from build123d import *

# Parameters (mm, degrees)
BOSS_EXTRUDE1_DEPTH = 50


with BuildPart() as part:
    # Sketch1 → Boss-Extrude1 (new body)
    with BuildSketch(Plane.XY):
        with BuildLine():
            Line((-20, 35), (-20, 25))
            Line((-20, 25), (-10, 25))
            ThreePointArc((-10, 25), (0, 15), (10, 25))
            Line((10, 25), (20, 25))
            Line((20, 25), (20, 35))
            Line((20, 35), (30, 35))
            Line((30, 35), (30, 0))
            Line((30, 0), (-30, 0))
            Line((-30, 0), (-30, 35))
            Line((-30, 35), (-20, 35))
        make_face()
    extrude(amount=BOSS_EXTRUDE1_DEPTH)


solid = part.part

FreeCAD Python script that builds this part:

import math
import FreeCAD as App
import Part
import Sketcher
from FreeCAD import Vector

doc = App.newDocument("Part")
body = doc.addObject("PartDesign::Body", "Body")

# Sketch on XY plane
sketch1 = body.newObject("Sketcher::SketchObject", "Sketch")
sketch1.AttachmentSupport = (doc.getObject("XY_Plane"), [""])
sketch1.MapMode = "FlatFace"
sketch1.addGeometry(Part.LineSegment(Vector(-20, 25, 0), Vector(-20, 35, 0)), False)
sketch1.addGeometry(Part.LineSegment(Vector(-20, 35, 0), Vector(-30, 35, 0)), False)
sketch1.addGeometry(Part.LineSegment(Vector(-30, 35, 0), Vector(-30, 0, 0)), False)
sketch1.addGeometry(Part.LineSegment(Vector(-30, 0, 0), Vector(30, 0, 0)), False)
sketch1.addGeometry(Part.LineSegment(Vector(30, 0, 0), Vector(30, 35, 0)), False)
sketch1.addGeometry(Part.LineSegment(Vector(30, 35, 0), Vector(20, 35, 0)), False)
sketch1.addGeometry(Part.LineSegment(Vector(20, 35, 0), Vector(20, 25, 0)), False)
sketch1.addGeometry(Part.LineSegment(Vector(20, 25, 0), Vector(10, 25, 0)), False)
sketch1.addGeometry(Part.ArcOfCircle(Part.Circle(Vector(0, 25, 0), Vector(0, 0, 1), 10), math.radians(180), math.radians(360)), False)
sketch1.addGeometry(Part.LineSegment(Vector(-10, 25, 0), Vector(-20, 25, 0)), False)
sketch1.addConstraint(Sketcher.Constraint("Coincident", 0, 2, 1, 1))
sketch1.addConstraint(Sketcher.Constraint("Coincident", 1, 2, 2, 1))
sketch1.addConstraint(Sketcher.Constraint("Coincident", 2, 2, 3, 1))
sketch1.addConstraint(Sketcher.Constraint("Coincident", 3, 2, 4, 1))
sketch1.addConstraint(Sketcher.Constraint("Coincident", 4, 2, 5, 1))
sketch1.addConstraint(Sketcher.Constraint("Coincident", 5, 2, 6, 1))
sketch1.addConstraint(Sketcher.Constraint("Coincident", 6, 2, 7, 1))
sketch1.addConstraint(Sketcher.Constraint("Coincident", 7, 2, 8, 2))
sketch1.addConstraint(Sketcher.Constraint("Coincident", 8, 1, 9, 1))
sketch1.addConstraint(Sketcher.Constraint("Coincident", 9, 2, 0, 1))
sketch1.addConstraint(Sketcher.Constraint("Vertical", 0))
sketch1.addConstraint(Sketcher.Constraint("Horizontal", 1))
sketch1.addConstraint(Sketcher.Constraint("Vertical", 2))
sketch1.addConstraint(Sketcher.Constraint("Horizontal", 3))
sketch1.addConstraint(Sketcher.Constraint("Vertical", 4))
sketch1.addConstraint(Sketcher.Constraint("Horizontal", 5))
sketch1.addConstraint(Sketcher.Constraint("Vertical", 6))
sketch1.addConstraint(Sketcher.Constraint("Horizontal", 7))
sketch1.addConstraint(Sketcher.Constraint("Horizontal", 9))
sketch1.addConstraint(Sketcher.Constraint("Symmetric", 2, 2, 3, 2, -1, 1))
sketch1.addConstraint(Sketcher.Constraint("Symmetric", 0, 2, 5, 2, -2))
sketch1.addConstraint(Sketcher.Constraint("Symmetric", 7, 2, 8, 1, -2))
sketch1.addConstraint(Sketcher.Constraint("Horizontal", 8, 3, 6, 2))
sketch1.addConstraint(Sketcher.Constraint("Equal", 5, 7))
sketch1.addConstraint(Sketcher.Constraint("Equal", 9, 0))
sketch1.addConstraint(Sketcher.Constraint("Radius", 8, 10.0))
sketch1.addConstraint(Sketcher.Constraint("DistanceX", 1, 2, 1, 1, 10.0))
sketch1.addConstraint(Sketcher.Constraint("DistanceY", 2, 2, 2, 1, 35.0))
pad1 = body.newObject("PartDesign::Pad", "Pad")
pad1.Profile = sketch1
pad1.Length = 50

doc.recompute()
